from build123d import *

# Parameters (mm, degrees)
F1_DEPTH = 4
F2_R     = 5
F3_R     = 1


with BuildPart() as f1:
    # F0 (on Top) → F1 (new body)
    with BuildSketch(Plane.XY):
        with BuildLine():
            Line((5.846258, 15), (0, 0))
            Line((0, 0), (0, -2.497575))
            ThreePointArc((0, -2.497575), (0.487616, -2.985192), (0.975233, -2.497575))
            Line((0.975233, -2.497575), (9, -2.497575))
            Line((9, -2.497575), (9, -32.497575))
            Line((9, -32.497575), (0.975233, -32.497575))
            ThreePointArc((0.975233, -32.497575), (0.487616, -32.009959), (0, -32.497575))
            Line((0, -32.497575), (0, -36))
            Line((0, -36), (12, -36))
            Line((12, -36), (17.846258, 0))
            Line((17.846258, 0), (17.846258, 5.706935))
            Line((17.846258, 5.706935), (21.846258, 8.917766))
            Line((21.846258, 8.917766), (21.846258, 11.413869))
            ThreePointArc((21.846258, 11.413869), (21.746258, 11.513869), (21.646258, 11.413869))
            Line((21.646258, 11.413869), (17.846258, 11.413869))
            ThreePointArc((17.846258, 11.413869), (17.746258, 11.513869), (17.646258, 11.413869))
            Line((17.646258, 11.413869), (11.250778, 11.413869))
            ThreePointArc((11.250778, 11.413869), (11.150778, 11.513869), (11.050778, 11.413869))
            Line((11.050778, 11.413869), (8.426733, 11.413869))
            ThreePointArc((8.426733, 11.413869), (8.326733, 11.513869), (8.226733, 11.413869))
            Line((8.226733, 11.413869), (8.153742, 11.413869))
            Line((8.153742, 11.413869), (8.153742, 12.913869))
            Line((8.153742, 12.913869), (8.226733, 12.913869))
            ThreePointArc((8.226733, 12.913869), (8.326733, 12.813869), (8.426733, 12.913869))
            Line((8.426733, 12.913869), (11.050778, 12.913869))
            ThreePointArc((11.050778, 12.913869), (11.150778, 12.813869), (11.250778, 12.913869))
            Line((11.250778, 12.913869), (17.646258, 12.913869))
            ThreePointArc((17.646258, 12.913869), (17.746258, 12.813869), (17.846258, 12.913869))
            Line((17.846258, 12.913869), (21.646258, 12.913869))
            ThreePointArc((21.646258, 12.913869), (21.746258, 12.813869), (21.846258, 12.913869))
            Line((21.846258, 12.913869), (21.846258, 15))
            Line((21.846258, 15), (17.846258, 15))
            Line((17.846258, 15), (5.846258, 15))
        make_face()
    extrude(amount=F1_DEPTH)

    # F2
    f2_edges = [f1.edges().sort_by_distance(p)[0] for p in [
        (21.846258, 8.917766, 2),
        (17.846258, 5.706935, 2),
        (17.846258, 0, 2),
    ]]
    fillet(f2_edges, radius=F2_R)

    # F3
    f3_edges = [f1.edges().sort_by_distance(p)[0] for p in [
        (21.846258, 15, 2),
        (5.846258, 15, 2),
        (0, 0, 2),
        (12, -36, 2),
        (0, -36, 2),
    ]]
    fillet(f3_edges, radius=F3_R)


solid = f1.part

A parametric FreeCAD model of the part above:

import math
import FreeCAD as App
import Part
import Sketcher


def edges_at(feature, points):
    """Names of the edges that pass closest to the given points."""
    edges = feature.Shape.Edges
    near = lambda p: min(range(len(edges)), key=lambda i: edges[i].distToShape(Part.Vertex(*p))[0])
    return sorted({f"Edge{near(p) + 1}" for p in points})

doc = App.newDocument("Part")
body = doc.addObject("PartDesign::Body", "Body")

# Sketch on XY plane
sketch1 = body.newObject("Sketcher::SketchObject", "Sketch")
sketch1.AttachmentSupport = (doc.getObject("XY_Plane"), [""])
sketch1.MapMode = "FlatFace"
sketch1.addGeometry([
    Part.LineSegment(App.Vector(5.85, 15, 0), App.Vector(0, 0, 0)),  # 0
    Part.LineSegment(App.Vector(0, 0, 0), App.Vector(0, -2.5, 0)),  # 1
    Part.ArcOfCircle(Part.Circle(App.Vector(0.49, -2.5, 0), App.Vector(0, 0, 1), 0.49), math.radians(180), math.radians(360)),  # 2
    Part.LineSegment(App.Vector(0.98, -2.5, 0), App.Vector(9, -2.5, 0)),  # 3
    Part.LineSegment(App.Vector(9, -2.5, 0), App.Vector(9, -32.5, 0)),  # 4
    Part.LineSegment(App.Vector(9, -32.5, 0), App.Vector(0.98, -32.5, 0)),  # 5
    Part.ArcOfCircle(Part.Circle(App.Vector(0.49, -32.5, 0), App.Vector(0, 0, 1), 0.49), math.radians(0), math.radians(180)),  # 6
    Part.LineSegment(App.Vector(0, -32.5, 0), App.Vector(0, -36, 0)),  # 7
    Part.LineSegment(App.Vector(0, -36, 0), App.Vector(12, -36, 0)),  # 8
    Part.LineSegment(App.Vector(12, -36, 0), App.Vector(17.85, 0, 0)),  # 9
    Part.LineSegment(App.Vector(17.85, 0, 0), App.Vector(17.85, 5.71, 0)),  # 10
    Part.LineSegment(App.Vector(17.85, 5.71, 0), App.Vector(21.85, 8.92, 0)),  # 11
    Part.LineSegment(App.Vector(21.85, 8.92, 0), App.Vector(21.85, 11.41, 0)),  # 12
    Part.ArcOfCircle(Part.Circle(App.Vector(21.75, 11.41, 0), App.Vector(0, 0, 1), 0.1), math.radians(0), math.radians(180)),  # 13
    Part.LineSegment(App.Vector(21.65, 11.41, 0), App.Vector(17.85, 11.41, 0)),  # 14
    Part.ArcOfCircle(Part.Circle(App.Vector(17.75, 11.41, 0), App.Vector(0, 0, 1), 0.1), math.radians(0), math.radians(180)),  # 15
    Part.LineSegment(App.Vector(17.65, 11.41, 0), App.Vector(11.25, 11.41, 0)),  # 16
    Part.ArcOfCircle(Part.Circle(App.Vector(11.15, 11.41, 0), App.Vector(0, 0, 1), 0.1), math.radians(0), math.radians(180)),  # 17
    Part.LineSegment(App.Vector(11.05, 11.41, 0), App.Vector(8.43, 11.41, 0)),  # 18
    Part.ArcOfCircle(Part.Circle(App.Vector(8.33, 11.41, 0), App.Vector(0, 0, 1), 0.1), math.radians(0), math.radians(180)),  # 19
    Part.LineSegment(App.Vector(8.23, 11.41, 0), App.Vector(8.15, 11.41, 0)),  # 20
    Part.LineSegment(App.Vector(8.15, 11.41, 0), App.Vector(8.15, 12.91, 0)),  # 21
    Part.LineSegment(App.Vector(8.15, 12.91, 0), App.Vector(8.23, 12.91, 0)),  # 22
    Part.ArcOfCircle(Part.Circle(App.Vector(8.33, 12.91, 0), App.Vector(0, 0, 1), 0.1), math.radians(180), math.radians(360)),  # 23
    Part.LineSegment(App.Vector(8.43, 12.91, 0), App.Vector(11.05, 12.91, 0)),  # 24
    Part.ArcOfCircle(Part.Circle(App.Vector(11.15, 12.91, 0), App.Vector(0, 0, 1), 0.1), math.radians(180), math.radians(360)),  # 25
    Part.LineSegment(App.Vector(11.25, 12.91, 0), App.Vector(17.65, 12.91, 0)),  # 26
    Part.ArcOfCircle(Part.Circle(App.Vector(17.75, 12.91, 0), App.Vector(0, 0, 1), 0.1), math.radians(180), math.radians(360)),  # 27
    Part.LineSegment(App.Vector(17.85, 12.91, 0), App.Vector(21.65, 12.91, 0)),  # 28
    Part.ArcOfCircle(Part.Circle(App.Vector(21.75, 12.91, 0), App.Vector(0, 0, 1), 0.1), math.radians(180), math.radians(360)),  # 29
    Part.LineSegment(App.Vector(21.85, 12.91, 0), App.Vector(21.85, 15, 0)),  # 30
    Part.LineSegment(App.Vector(21.85, 15, 0), App.Vector(5.85, 15, 0)),  # 31
], False)
sketch1.addConstraint([
    Sketcher.Constraint("Coincident", 0, 2, 1, 1),
    Sketcher.Constraint("Tangent", 1, 2, 2, 1),
    Sketcher.Constraint("Coincident", 2, 2, 3, 1),
    Sketcher.Constraint("Coincident", 3, 2, 4, 1),
    Sketcher.Constraint("Coincident", 4, 2, 5, 1),
    Sketcher.Constraint("Coincident", 5, 2, 6, 1),
    Sketcher.Constraint("Tangent", 6, 2, 7, 1),
    Sketcher.Constraint("Coincident", 7, 2, 8, 1),
    Sketcher.Constraint("Coincident", 8, 2, 9, 1),
    Sketcher.Constraint("Coincident", 9, 2, 10, 1),
    Sketcher.Constraint("Coincident", 10, 2, 11, 1),
    Sketcher.Constraint("Coincident", 11, 2, 12, 1),
    Sketcher.Constraint("Tangent", 12, 2, 13, 1),
    Sketcher.Constraint("Coincident", 13, 2, 14, 1),
    Sketcher.Constraint("Coincident", 14, 2, 15, 1),
    Sketcher.Constraint("Coincident", 15, 2, 16, 1),
    Sketcher.Constraint("Coincident", 16, 2, 17, 1),
    Sketcher.Constraint("Coincident", 17, 2, 18, 1),
    Sketcher.Constraint("Coincident", 18, 2, 19, 1),
    Sketcher.Constraint("Coincident", 19, 2, 20, 1),
    Sketcher.Constraint("Coincident", 20, 2, 21, 1),
    Sketcher.Constraint("Coincident", 21, 2, 22, 1),
    Sketcher.Constraint("Coincident", 22, 2, 23, 1),
    Sketcher.Constraint("Coincident", 23, 2, 24, 1),
    Sketcher.Constraint("Coincident", 24, 2, 25, 1),
    Sketcher.Constraint("Coincident", 25, 2, 26, 1),
    Sketcher.Constraint("Coincident", 26, 2, 27, 1),
    Sketcher.Constraint("Coincident", 27, 2, 28, 1),
    Sketcher.Constraint("Coincident", 28, 2, 29, 1),
    Sketcher.Constraint("Tangent", 29, 2, 30, 1),
    Sketcher.Constraint("Coincident", 30, 2, 31, 1),
    Sketcher.Constraint("Coincident", 31, 2, 0, 1),
    Sketcher.Constraint("Vertical", 1),
    Sketcher.Constraint("Horizontal", 3),
    Sketcher.Constraint("Vertical", 4),
    Sketcher.Constraint("Horizontal", 5),
    Sketcher.Constraint("Vertical", 7),
    Sketcher.Constraint("Horizontal", 8),
    Sketcher.Constraint("Vertical", 10),
    Sketcher.Constraint("Vertical", 12),
    Sketcher.Constraint("Horizontal", 14),
    Sketcher.Constraint("Horizontal", 16),
    Sketcher.Constraint("Horizontal", 18),
    Sketcher.Constraint("Horizontal", 20),
    Sketcher.Constraint("Vertical", 21),
    Sketcher.Constraint("Horizontal", 22),
    Sketcher.Constraint("Horizontal", 24),
    Sketcher.Constraint("Horizontal", 26),
    Sketcher.Constraint("Horizontal", 28),
    Sketcher.Constraint("Vertical", 30),
    Sketcher.Constraint("Horizontal", 31),
    Sketcher.Constraint("Coincident", 0, 2, -1, 1),
    Sketcher.Constraint("Equal", 2, 6),
    Sketcher.Constraint("Equal", 13, 15),
    Sketcher.Constraint("Equal", 15, 17),
    Sketcher.Constraint("Equal", 17, 19),
    Sketcher.Constraint("Equal", 19, 23),
    Sketcher.Constraint("Equal", 23, 25),
    Sketcher.Constraint("Equal", 25, 27),
    Sketcher.Constraint("Equal", 27, 29),
    Sketcher.Constraint("PointOnObject", 6, 2, -2),
    Sketcher.Constraint("PointOnObject", 9, 2, -1),
    Sketcher.Constraint("Horizontal", 13, 3, 15, 3),
    Sketcher.Constraint("Horizontal", 15, 3, 17, 3),
    Sketcher.Constraint("Horizontal", 17, 3, 19, 3),
    Sketcher.Constraint("Horizontal", 23, 3, 25, 3),
    Sketcher.Constraint("Horizontal", 25, 3, 27, 3),
    Sketcher.Constraint("Horizontal", 27, 3, 29, 3),
    Sketcher.Constraint("Horizontal", 1, 2, 2, 2),
    Sketcher.Constraint("Horizontal", 6, 3, 4, 2),
    Sketcher.Constraint("Horizontal", 12, 2, 13, 2),
    Sketcher.Constraint("Horizontal", 14, 2, 15, 2),
    Sketcher.Constraint("Horizontal", 16, 2, 17, 2),
    Sketcher.Constraint("Horizontal", 18, 2, 19, 2),
    Sketcher.Constraint("Horizontal", 29, 3, 21, 2),
    Sketcher.Constraint("Horizontal", 22, 2, 23, 2),
    Sketcher.Constraint("Horizontal", 24, 2, 25, 2),
    Sketcher.Constraint("Horizontal", 26, 2, 27, 2),
    Sketcher.Constraint("Vertical", 19, 3, 23, 3),
    Sketcher.Constraint("Vertical", 17, 3, 25, 3),
    Sketcher.Constraint("Vertical", 15, 3, 27, 3),
    Sketcher.Constraint("Vertical", 13, 3, 29, 3),
    Sketcher.Constraint("Vertical", 10, 2, 14, 2),
    Sketcher.Constraint("Radius", 13, 0.1),
    Sketcher.Constraint("DistanceX", 8, 1, 8, 2, 12.0),
    Sketcher.Constraint("DistanceX", 31, 2, 31, 1, 16.0),
    Sketcher.Constraint("DistanceY", 4, 2, 4, 1, 30.0),
    Sketcher.Constraint("DistanceX", 14, 2, 14, 1, 3.8),
    Sketcher.Constraint("DistanceY", 21, 1, 21, 2, 1.5),
    Sketcher.Constraint("DistanceX", -1, 1, 3, 2, 9.0),
    Sketcher.Constraint("DistanceY", 7, 2, -1, 1, 36.0),
    Sketcher.Constraint("DistanceY", -1, 1, 30, 2, 15.0),
    Sketcher.Constraint("Radius", 2, 0.487617),
    Sketcher.Constraint("DistanceX", 16, 2, 16, 1, 6.39548),
    Sketcher.Constraint("DistanceX", 20, 2, 20, 1, 0.072991),
    Sketcher.Constraint("DistanceY", 30, 1, 30, 2, 2.086131),
    Sketcher.Constraint("DistanceX", 2, 2, 19, 3, 7.3515),
    Sketcher.Constraint("Distance", 0, 16.099029),
    Sketcher.Constraint("DistanceY", 1, 2, 1, 1, 2.497575),
    Sketcher.Constraint("DistanceY", 10, 1, 10, 2, 5.706935),
    Sketcher.Constraint("DistanceY", 12, 1, 12, 2, 2.496103),
])
pad1 = body.newObject("PartDesign::Pad", "Pad")
pad1.Profile = sketch1
pad1.Length = 4
doc.recompute()

fillet = body.newObject("PartDesign::Fillet", "Fillet")
fillet.Base = (pad1, edges_at(pad1, [(21.846, 8.918, 2), (17.846, 5.707, 2), (17.846, 0, 2)]))
fillet.Radius = 5
doc.recompute()

fillet2 = body.newObject("PartDesign::Fillet", "Fillet001")
fillet2.Base = (fillet, edges_at(fillet, [
    (21.846, 15, 2),
    (5.846, 15, 2),
    (0, 0, 2),
    (12, -36, 2),
    (0, -36, 2),
]))
fillet2.Radius = 1

doc.recompute()
